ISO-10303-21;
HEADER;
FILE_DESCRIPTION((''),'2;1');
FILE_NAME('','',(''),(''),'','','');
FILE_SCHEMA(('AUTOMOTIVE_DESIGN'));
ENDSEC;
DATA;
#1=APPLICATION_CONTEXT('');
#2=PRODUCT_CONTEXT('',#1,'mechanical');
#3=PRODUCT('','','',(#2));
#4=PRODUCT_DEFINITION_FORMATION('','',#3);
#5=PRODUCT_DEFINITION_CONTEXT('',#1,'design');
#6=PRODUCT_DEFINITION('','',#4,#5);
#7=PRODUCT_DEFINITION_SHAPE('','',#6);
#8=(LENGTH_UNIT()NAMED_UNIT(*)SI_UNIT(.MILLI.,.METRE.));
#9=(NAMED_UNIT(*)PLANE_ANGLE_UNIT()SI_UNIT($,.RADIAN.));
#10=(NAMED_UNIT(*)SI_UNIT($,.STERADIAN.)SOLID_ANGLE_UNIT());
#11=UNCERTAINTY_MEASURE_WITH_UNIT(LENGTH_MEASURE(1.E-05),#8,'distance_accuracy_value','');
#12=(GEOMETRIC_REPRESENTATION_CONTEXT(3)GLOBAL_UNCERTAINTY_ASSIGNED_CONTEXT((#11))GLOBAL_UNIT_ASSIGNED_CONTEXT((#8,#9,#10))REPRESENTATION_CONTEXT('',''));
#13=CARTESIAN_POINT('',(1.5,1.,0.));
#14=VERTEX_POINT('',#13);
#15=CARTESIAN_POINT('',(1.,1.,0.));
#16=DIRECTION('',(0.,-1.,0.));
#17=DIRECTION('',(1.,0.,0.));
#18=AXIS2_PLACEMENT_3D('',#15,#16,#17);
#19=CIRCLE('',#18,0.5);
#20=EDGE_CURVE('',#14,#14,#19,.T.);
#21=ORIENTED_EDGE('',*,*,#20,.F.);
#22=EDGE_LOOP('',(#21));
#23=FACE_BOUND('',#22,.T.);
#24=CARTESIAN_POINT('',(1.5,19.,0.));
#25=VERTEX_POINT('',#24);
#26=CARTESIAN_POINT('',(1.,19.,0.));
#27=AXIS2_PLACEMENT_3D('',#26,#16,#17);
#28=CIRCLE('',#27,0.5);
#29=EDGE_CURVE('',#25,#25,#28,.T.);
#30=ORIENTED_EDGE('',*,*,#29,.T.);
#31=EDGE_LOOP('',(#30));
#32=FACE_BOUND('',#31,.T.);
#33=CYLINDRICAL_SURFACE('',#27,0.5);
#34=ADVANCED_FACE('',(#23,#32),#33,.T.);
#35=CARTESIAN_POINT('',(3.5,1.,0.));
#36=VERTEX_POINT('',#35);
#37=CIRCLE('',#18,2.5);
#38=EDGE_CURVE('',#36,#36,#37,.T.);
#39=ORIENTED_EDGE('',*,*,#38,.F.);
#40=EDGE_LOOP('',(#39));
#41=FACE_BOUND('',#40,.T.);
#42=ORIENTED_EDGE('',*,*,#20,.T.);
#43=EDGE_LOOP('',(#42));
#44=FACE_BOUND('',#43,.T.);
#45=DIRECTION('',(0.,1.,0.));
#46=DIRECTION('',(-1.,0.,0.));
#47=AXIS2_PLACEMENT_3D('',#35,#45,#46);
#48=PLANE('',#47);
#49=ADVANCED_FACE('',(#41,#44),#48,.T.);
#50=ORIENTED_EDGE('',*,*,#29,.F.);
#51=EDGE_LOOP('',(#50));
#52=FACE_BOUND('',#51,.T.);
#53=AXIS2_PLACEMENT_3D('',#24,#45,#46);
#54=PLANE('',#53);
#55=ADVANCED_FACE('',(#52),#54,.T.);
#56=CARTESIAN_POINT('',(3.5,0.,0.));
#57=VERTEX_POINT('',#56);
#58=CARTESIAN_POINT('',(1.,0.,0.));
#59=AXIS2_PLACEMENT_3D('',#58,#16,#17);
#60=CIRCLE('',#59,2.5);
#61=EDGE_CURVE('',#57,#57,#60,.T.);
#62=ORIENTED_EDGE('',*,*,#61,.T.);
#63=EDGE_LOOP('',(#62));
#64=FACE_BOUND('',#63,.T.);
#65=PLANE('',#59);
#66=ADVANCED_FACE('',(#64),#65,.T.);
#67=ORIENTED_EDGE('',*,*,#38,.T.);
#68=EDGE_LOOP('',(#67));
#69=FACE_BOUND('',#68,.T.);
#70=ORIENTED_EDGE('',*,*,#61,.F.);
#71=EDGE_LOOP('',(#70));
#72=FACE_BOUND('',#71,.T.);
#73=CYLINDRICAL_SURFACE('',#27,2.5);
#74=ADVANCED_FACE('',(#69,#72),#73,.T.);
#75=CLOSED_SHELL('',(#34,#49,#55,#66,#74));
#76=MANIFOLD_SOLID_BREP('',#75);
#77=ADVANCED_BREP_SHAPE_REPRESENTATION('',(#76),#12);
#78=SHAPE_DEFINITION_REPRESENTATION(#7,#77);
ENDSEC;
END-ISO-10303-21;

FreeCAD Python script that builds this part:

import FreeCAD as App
import Part
import Sketcher


def add_polygon(sketch, points):
    """Adds a closed chain of lines whose ends are joined by coincident constraints."""
    first, n = sketch.GeometryCount, len(points)
    for a, b in zip(points, points[1:] + points[:1]):
        sketch.addGeometry(Part.LineSegment(App.Vector(*a, 0), App.Vector(*b, 0)), False)
    for i in range(n):
        sketch.addConstraint(Sketcher.Constraint("Coincident", first + i, 2, first + (i + 1) % n, 1))

doc = App.newDocument("Part")
body = doc.addObject("PartDesign::Body", "Body")

# Sketch on XY plane
sketch1 = body.newObject("Sketcher::SketchObject", "Sketch")
sketch1.AttachmentSupport = (doc.getObject("XY_Plane"), [""])
sketch1.MapMode = "FlatFace"
add_polygon(sketch1, [(1.5, 19), (1, 19), (1, 0), (3.5, 0), (3.5, 1), (1.5, 1)])  # lines 0-5
sketch1.addGeometry(Part.LineSegment(App.Vector(1, 19, 0), App.Vector(1, 0, 0)), True)  # axis
sketch1.addConstraint([
    Sketcher.Constraint("Horizontal", 0),
    Sketcher.Constraint("Vertical", 1),
    Sketcher.Constraint("Horizontal", 2),
    Sketcher.Constraint("Vertical", 3),
    Sketcher.Constraint("Horizontal", 4),
    Sketcher.Constraint("Vertical", 5),
    Sketcher.Constraint("Vertical", 6),
    Sketcher.Constraint("Coincident", 6, 1, 0, 2),
    Sketcher.Constraint("PointOnObject", 1, 2, -1),
    Sketcher.Constraint("PointOnObject", 6, 2, -1),
    Sketcher.Constraint("DistanceX", 4, 2, 4, 1, 2.0),
    Sketcher.Constraint("DistanceY", 1, 2, 1, 1, 19.0),
    Sketcher.Constraint("DistanceY", 3, 1, 3, 2, 1.0),
    Sketcher.Constraint("DistanceX", 0, 2, 0, 1, 0.5),
    Sketcher.Constraint("DistanceX", -1, 1, 0, 2, 1.0),
])
revolution = body.newObject("PartDesign::Revolution", "Revolution")
revolution.Profile = sketch1
revolution.ReferenceAxis = (sketch1, ["Axis0"])
revolution.Angle = 360

doc.recompute()
